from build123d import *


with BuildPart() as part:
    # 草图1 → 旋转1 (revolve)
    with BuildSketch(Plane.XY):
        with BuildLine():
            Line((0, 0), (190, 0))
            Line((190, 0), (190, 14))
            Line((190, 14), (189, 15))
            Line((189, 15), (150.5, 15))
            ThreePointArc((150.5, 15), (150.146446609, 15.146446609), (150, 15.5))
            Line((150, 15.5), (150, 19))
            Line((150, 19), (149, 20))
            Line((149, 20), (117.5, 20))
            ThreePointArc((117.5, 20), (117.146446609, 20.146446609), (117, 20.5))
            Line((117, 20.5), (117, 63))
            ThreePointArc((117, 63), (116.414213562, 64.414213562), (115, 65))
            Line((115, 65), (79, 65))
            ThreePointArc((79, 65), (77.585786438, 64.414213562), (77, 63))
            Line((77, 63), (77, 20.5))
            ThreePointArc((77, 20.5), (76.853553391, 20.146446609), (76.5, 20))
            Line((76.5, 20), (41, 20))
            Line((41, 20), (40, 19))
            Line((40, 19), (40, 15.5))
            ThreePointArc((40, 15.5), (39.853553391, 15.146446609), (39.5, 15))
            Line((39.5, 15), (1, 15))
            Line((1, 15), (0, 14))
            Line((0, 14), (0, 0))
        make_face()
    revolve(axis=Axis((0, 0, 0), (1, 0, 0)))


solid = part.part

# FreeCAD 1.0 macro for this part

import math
import FreeCAD as App
import Part
import Sketcher
Q = App.Units.Quantity

doc = App.newDocument("Part")
body = doc.addObject("PartDesign::Body", "Body")

sketch1 = body.newObject("Sketcher::SketchObject", "Sketch")
sketch1.AttachmentSupport = (doc.getObject("XY_Plane"), [""])
sketch1.MapMode = "FlatFace"
sketch1.addGeometry([
    Part.LineSegment(App.Vector(0, 0, 0), App.Vector(190, 0, 0)),
    Part.LineSegment(App.Vector(190, 0, 0), App.Vector(190, 14, 0)),
    Part.LineSegment(App.Vector(190, 14, 0), App.Vector(189, 15, 0)),
    Part.LineSegment(App.Vector(189, 15, 0), App.Vector(150.5, 15, 0)),
    Part.ArcOfCircle(Part.Circle(App.Vector(150.5, 15.5, 0), App.Vector(0, 0, 1), 0.5), math.radians(180), math.radians(270)),
    Part.LineSegment(App.Vector(150, 15.5, 0), App.Vector(150, 19, 0)),
    Part.LineSegment(App.Vector(150, 19, 0), App.Vector(149, 20, 0)),
    Part.LineSegment(App.Vector(149, 20, 0), App.Vector(117.5, 20, 0)),
    Part.ArcOfCircle(Part.Circle(App.Vector(117.5, 20.5, 0), App.Vector(0, 0, 1), 0.5), math.radians(180), math.radians(270)),
    Part.LineSegment(App.Vector(117, 20.5, 0), App.Vector(117, 63, 0)),
    Part.ArcOfCircle(Part.Circle(App.Vector(115, 63, 0), App.Vector(0, 0, 1), 2), math.radians(0), math.radians(90)),
    Part.LineSegment(App.Vector(115, 65, 0), App.Vector(79, 65, 0)),
    Part.ArcOfCircle(Part.Circle(App.Vector(79, 63, 0), App.Vector(0, 0, 1), 2), math.radians(90), math.radians(180)),
    Part.LineSegment(App.Vector(77, 63, 0), App.Vector(77, 20.5, 0)),
    Part.ArcOfCircle(Part.Circle(App.Vector(76.5, 20.5, 0), App.Vector(0, 0, 1), 0.5), math.radians(-90), math.radians(0)),
    Part.LineSegment(App.Vector(76.5, 20, 0), App.Vector(41, 20, 0)),
    Part.LineSegment(App.Vector(41, 20, 0), App.Vector(40, 19, 0)),
    Part.LineSegment(App.Vector(40, 19, 0), App.Vector(40, 15.5, 0)),
    Part.ArcOfCircle(Part.Circle(App.Vector(39.5, 15.5, 0), App.Vector(0, 0, 1), 0.5), math.radians(-90), math.radians(0)),
    Part.LineSegment(App.Vector(39.5, 15, 0), App.Vector(1, 15, 0)),
    Part.LineSegment(App.Vector(1, 15, 0), App.Vector(0, 14, 0)),
    Part.LineSegment(App.Vector(0, 14, 0), App.Vector(0, 0, 0)),
], False)
sketch1.addConstraint([
    Sketcher.Constraint("Coincident", 0, 2, 1, 1),
    Sketcher.Constraint("Coincident", 1, 2, 2, 1),
    Sketcher.Constraint("Coincident", 2, 2, 3, 1),
    Sketcher.Constraint("Tangent", 3, 2, 4, 2),
    Sketcher.Constraint("Tangent", 4, 1, 5, 1),
    Sketcher.Constraint("Coincident", 5, 2, 6, 1),
    Sketcher.Constraint("Coincident", 6, 2, 7, 1),
    Sketcher.Constraint("Tangent", 7, 2, 8, 2),
    Sketcher.Constraint("Tangent", 8, 1, 9, 1),
    Sketcher.Constraint("Tangent", 9, 2, 10, 1),
    Sketcher.Constraint("Tangent", 10, 2, 11, 1),
    Sketcher.Constraint("Tangent", 11, 2, 12, 1),
    Sketcher.Constraint("Tangent", 12, 2, 13, 1),
    Sketcher.Constraint("Tangent", 13, 2, 14, 2),
    Sketcher.Constraint("Tangent", 14, 1, 15, 1),
    Sketcher.Constraint("Coincident", 15, 2, 16, 1),
    Sketcher.Constraint("Coincident", 16, 2, 17, 1),
    Sketcher.Constraint("Tangent", 17, 2, 18, 2),
    Sketcher.Constraint("Tangent", 18, 1, 19, 1),
    Sketcher.Constraint("Coincident", 19, 2, 20, 1),
    Sketcher.Constraint("Coincident", 20, 2, 21, 1),
    Sketcher.Constraint("Coincident", 21, 2, 0, 1),
    Sketcher.Constraint("Horizontal", 0),
    Sketcher.Constraint("Vertical", 1),
    Sketcher.Constraint("Horizontal", 3),
    Sketcher.Constraint("Vertical", 5),
    Sketcher.Constraint("Horizontal", 7),
    Sketcher.Constraint("Vertical", 9),
    Sketcher.Constraint("Horizontal", 11),
    Sketcher.Constraint("Vertical", 13),
    Sketcher.Constraint("Horizontal", 15),
    Sketcher.Constraint("Vertical", 17),
    Sketcher.Constraint("Horizontal", 19),
    Sketcher.Constraint("Vertical", 21),
    Sketcher.Constraint("Coincident", 21, 2, -1, 1),
    Sketcher.Constraint("Equal", 4, 8),
    Sketcher.Constraint("Equal", 10, 12),
    Sketcher.Constraint("Equal", 8, 14),
    Sketcher.Constraint("Equal", 14, 18),
    Sketcher.Constraint("Parallel", 2, 6),
    Sketcher.Constraint("Perpendicular", 6, 16),
    Sketcher.Constraint("Parallel", 16, 20),
    Sketcher.Constraint("Horizontal", 8, 3, 14, 3),
    Sketcher.Constraint("Horizontal", 4, 3, 18, 3),
    Sketcher.Constraint("Horizontal", 5, 2, 16, 2),
    Sketcher.Constraint("Horizontal", 1, 2, 20, 2),
    Sketcher.Constraint("Equal", 3, 19),
    Sketcher.Constraint("Equal", 2, 6),
    Sketcher.Constraint("Equal", 6, 16),
    Sketcher.Constraint("Radius", 10, Q("2 mm")),
    Sketcher.Constraint("Radius", 4, Q("0.5 mm")),
    Sketcher.Constraint("DistanceX", 0, 1, 0, 2, Q("190 mm")),
    Sketcher.Constraint("DistanceX", 11, 2, 11, 1, Q("36 mm")),
    Sketcher.Constraint("DistanceY", 1, 1, 1, 2, Q("14 mm")),
    Sketcher.Constraint("DistanceX", 3, 2, 3, 1, Q("38.5 mm")),
    Sketcher.Constraint("DistanceX", 7, 2, 7, 1, Q("31.5 mm")),
    Sketcher.Constraint("DistanceX", 15, 2, 15, 1, Q("35.5 mm")),
    Sketcher.Constraint("DistanceY", 5, 1, 5, 2, Q("3.5 mm")),
    Sketcher.Constraint("DistanceY", 9, 1, 9, 2, Q("42.5 mm")),
])
revolution = body.newObject("PartDesign::Revolution", "Revolution")
revolution.Profile = sketch1
revolution.ReferenceAxis = (sketch1, ["H_Axis"])
revolution.Angle = 360

doc.recompute()
